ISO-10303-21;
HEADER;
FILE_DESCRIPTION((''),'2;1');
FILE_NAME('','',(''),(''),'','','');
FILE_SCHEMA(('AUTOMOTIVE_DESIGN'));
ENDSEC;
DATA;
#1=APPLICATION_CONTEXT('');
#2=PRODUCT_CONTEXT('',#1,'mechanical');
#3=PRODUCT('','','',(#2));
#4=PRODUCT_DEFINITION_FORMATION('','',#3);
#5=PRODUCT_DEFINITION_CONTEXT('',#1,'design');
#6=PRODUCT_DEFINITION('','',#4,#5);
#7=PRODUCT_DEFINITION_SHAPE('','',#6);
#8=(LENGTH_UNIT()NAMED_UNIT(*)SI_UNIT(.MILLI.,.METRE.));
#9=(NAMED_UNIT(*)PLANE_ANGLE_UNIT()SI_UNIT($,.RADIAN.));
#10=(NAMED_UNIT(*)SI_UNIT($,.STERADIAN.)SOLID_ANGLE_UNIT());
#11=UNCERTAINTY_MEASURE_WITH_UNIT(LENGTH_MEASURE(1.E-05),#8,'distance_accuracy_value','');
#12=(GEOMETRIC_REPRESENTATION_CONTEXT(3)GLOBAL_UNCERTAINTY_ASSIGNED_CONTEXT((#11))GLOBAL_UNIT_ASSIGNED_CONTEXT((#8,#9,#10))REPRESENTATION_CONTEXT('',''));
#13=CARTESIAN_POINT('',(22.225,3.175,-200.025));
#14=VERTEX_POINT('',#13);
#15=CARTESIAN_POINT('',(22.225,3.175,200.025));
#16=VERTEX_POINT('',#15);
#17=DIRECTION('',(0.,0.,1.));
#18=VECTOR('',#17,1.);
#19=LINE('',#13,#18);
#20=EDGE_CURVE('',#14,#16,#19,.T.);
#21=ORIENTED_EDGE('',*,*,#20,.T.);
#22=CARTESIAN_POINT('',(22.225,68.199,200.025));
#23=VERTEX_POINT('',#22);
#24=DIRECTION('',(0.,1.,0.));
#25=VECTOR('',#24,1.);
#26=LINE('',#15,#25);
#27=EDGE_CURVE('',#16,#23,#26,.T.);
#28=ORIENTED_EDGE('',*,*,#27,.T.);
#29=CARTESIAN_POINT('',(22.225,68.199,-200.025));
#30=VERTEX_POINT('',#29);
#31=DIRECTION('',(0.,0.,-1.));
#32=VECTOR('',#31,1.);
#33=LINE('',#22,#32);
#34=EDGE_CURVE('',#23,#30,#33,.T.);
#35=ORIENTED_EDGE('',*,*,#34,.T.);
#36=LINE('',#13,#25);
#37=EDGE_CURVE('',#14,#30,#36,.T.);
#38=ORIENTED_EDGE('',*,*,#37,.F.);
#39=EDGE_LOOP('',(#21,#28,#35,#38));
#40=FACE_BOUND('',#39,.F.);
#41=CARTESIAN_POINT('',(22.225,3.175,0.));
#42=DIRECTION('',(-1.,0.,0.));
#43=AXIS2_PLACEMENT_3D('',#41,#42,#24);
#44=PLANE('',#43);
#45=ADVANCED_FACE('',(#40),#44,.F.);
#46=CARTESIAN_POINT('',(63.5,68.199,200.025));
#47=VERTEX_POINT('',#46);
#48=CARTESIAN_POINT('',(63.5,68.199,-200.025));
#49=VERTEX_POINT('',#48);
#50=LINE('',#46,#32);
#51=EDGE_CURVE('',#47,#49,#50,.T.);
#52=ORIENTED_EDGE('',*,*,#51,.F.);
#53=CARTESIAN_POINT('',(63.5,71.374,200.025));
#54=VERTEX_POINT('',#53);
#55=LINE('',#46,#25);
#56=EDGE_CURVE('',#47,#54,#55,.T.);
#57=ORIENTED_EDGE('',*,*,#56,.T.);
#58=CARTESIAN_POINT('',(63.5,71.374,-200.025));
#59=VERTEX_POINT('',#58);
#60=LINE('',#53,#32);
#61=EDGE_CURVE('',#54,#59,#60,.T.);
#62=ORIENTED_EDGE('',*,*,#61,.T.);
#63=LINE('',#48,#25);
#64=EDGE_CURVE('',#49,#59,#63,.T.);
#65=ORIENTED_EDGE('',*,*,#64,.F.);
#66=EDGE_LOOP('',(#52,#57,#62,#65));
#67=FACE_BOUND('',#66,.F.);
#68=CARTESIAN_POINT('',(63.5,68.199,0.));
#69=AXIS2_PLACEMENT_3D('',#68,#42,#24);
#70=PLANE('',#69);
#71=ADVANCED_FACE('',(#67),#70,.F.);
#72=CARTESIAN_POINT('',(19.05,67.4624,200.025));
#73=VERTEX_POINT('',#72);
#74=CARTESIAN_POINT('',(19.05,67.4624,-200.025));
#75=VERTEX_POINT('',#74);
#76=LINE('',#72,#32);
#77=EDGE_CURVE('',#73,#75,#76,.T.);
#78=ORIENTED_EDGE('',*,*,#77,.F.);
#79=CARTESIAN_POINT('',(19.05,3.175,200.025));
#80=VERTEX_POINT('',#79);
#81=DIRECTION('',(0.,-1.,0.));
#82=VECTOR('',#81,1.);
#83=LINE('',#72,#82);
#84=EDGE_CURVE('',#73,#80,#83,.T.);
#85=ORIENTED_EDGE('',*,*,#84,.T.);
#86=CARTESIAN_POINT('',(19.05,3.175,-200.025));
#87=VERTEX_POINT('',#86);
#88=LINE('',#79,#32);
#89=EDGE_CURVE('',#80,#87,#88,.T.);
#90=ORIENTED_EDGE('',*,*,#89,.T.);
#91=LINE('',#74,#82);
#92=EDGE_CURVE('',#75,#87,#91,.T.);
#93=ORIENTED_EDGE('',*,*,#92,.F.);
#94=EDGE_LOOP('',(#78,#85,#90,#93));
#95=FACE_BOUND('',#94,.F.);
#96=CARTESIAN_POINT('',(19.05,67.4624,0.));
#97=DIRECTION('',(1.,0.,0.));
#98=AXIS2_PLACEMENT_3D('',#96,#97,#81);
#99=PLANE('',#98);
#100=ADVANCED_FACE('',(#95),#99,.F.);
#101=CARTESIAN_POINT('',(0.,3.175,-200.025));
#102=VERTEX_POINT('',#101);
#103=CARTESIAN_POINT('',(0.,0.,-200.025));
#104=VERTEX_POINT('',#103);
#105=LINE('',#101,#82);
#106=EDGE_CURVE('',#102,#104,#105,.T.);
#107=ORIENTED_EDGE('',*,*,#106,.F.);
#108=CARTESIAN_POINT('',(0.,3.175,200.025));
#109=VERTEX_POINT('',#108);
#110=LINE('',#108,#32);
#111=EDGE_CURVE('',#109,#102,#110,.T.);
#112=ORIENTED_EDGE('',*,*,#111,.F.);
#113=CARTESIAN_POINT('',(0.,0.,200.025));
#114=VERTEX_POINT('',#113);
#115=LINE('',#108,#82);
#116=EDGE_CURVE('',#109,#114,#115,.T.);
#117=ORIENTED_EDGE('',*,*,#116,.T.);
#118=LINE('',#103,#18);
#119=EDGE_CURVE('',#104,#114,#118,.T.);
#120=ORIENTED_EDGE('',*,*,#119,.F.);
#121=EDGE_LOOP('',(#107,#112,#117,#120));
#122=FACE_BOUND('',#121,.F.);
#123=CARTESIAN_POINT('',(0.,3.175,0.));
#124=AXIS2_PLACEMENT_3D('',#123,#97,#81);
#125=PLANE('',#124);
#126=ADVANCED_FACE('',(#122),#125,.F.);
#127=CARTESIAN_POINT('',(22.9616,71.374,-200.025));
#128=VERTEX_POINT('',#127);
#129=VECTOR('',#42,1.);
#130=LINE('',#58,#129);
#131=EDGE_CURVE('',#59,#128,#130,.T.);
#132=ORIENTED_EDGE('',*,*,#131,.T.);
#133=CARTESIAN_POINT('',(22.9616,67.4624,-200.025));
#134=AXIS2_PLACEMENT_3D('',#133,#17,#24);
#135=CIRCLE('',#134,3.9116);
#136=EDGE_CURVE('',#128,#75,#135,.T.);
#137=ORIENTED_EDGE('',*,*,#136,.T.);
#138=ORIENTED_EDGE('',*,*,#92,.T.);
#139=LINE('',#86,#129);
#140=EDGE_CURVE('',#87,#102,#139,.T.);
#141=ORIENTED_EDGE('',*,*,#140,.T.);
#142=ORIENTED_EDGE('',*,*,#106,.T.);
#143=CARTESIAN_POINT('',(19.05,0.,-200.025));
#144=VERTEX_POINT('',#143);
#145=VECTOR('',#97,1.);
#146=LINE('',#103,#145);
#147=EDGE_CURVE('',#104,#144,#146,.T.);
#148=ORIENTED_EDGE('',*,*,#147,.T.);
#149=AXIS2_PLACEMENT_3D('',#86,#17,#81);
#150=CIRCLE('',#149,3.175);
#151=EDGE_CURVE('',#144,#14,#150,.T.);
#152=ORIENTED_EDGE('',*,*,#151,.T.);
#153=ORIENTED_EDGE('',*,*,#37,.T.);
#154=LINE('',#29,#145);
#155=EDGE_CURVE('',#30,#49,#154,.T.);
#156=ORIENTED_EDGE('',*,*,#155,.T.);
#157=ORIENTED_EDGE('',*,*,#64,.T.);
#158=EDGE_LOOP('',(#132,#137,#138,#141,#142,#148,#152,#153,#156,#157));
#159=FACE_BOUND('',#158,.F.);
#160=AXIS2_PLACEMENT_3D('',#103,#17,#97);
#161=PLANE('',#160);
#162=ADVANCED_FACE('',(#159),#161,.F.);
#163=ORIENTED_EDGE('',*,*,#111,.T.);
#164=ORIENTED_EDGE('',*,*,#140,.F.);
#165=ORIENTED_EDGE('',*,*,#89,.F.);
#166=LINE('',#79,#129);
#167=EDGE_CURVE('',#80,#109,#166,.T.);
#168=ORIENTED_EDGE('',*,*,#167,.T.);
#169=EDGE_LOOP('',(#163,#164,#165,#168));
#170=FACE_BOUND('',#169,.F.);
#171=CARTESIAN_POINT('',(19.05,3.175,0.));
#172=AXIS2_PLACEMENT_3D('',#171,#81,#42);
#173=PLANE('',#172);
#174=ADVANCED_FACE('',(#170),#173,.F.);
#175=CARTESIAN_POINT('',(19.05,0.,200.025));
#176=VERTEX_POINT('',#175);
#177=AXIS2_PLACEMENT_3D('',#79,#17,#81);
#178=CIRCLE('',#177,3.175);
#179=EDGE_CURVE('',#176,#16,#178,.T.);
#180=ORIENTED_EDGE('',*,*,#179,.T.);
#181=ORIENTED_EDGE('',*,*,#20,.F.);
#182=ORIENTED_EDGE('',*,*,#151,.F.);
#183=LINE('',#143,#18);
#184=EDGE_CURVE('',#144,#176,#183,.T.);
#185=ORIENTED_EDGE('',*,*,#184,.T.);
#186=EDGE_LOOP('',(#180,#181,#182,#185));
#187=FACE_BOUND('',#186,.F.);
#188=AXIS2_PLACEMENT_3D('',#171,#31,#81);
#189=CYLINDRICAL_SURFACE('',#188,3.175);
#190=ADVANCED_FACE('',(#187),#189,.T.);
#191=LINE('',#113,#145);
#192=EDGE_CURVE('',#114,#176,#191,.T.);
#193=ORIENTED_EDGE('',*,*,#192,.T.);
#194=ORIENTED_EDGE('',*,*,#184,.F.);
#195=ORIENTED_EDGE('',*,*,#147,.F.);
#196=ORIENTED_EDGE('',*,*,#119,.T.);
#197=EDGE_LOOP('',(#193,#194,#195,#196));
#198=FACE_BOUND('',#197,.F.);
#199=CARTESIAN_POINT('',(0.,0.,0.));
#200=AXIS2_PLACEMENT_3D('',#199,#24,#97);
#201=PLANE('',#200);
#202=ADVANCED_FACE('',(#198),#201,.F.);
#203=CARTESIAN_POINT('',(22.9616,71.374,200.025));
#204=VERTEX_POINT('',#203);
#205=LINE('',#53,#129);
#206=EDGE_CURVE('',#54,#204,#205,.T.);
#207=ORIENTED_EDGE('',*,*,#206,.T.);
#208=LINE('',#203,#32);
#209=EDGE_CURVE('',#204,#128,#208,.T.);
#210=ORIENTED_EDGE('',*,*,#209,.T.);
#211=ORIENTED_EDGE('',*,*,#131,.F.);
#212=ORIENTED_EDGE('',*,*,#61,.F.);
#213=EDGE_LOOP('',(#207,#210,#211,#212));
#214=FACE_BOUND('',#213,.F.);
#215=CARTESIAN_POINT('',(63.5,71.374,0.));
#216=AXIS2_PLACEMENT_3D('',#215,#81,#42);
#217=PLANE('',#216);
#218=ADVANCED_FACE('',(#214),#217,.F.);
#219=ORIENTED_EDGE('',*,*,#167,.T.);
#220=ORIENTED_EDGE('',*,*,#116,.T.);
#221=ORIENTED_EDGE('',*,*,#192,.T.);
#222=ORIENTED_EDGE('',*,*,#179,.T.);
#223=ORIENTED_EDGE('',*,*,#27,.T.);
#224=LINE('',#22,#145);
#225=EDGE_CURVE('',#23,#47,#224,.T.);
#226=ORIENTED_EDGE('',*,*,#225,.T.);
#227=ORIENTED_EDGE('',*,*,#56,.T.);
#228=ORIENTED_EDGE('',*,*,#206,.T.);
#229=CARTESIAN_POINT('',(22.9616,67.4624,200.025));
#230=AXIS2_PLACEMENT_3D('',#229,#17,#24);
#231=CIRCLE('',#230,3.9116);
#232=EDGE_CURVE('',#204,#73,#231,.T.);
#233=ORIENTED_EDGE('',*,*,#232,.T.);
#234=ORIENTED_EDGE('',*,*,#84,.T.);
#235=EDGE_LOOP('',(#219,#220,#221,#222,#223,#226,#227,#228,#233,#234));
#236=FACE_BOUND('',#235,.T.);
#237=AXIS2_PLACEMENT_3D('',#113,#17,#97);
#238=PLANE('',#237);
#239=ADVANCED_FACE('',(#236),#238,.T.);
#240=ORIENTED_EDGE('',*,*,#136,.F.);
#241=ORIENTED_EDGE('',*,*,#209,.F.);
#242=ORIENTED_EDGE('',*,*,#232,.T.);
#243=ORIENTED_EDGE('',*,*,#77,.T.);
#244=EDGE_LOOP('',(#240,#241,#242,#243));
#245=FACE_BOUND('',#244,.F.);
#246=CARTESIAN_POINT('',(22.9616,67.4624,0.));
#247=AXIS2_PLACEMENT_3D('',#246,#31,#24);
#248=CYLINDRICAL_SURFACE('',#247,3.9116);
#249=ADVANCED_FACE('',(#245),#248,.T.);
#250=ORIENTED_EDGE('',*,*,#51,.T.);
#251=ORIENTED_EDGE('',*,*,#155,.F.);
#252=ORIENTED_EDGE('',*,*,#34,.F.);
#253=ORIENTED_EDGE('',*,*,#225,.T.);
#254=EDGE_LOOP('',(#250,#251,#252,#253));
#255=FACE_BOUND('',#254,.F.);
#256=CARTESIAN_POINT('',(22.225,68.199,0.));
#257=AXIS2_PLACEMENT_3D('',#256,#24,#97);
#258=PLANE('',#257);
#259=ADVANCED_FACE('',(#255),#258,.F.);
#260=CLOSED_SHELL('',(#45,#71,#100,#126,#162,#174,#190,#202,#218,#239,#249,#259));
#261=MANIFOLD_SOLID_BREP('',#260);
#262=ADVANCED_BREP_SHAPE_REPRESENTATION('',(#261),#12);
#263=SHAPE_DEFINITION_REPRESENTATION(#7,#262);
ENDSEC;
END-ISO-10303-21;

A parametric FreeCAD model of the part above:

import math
import FreeCAD as App
import Part
import Sketcher

V = App.Vector
Q = App.Units.Quantity

doc = App.newDocument("Part")
body = doc.addObject("PartDesign::Body", "Body")

sketch1 = doc.addObject("Sketcher::SketchObject", "Sketch")
body.addObject(sketch1)
sketch1.AttachmentSupport = (doc.XY_Plane, [""])
sketch1.MapMode = "FlatFace"
sketch1.addGeometry(Part.LineSegment(V(0, 3.2, 0), V(0, 0, 0)), False)
sketch1.addGeometry(Part.LineSegment(V(0, 0, 0), V(19.1, 0, 0)), False)
sketch1.addGeometry(Part.ArcOfCircle(Part.Circle(V(19.1, 3.2, 0), V(0, 0, 1), 3.2), math.radians(-90), math.radians(0)), False)
sketch1.addGeometry(Part.LineSegment(V(22.2, 3.2, 0), V(22.2, 68.2, 0)), False)
sketch1.addGeometry(Part.LineSegment(V(22.2, 68.2, 0), V(63.5, 68.2, 0)), False)
sketch1.addGeometry(Part.LineSegment(V(63.5, 68.2, 0), V(63.5, 71.4, 0)), False)
sketch1.addGeometry(Part.LineSegment(V(63.5, 71.4, 0), V(23, 71.4, 0)), False)
sketch1.addGeometry(Part.ArcOfCircle(Part.Circle(V(23, 67.5, 0), V(0, 0, 1), 3.9), math.radians(90), math.radians(180)), False)
sketch1.addGeometry(Part.LineSegment(V(19.1, 67.5, 0), V(19.1, 3.2, 0)), False)
sketch1.addGeometry(Part.LineSegment(V(19.1, 3.2, 0), V(0, 3.2, 0)), False)
sketch1.addConstraint(Sketcher.Constraint("Coincident", 0, 2, 1, 1))
sketch1.addConstraint(Sketcher.Constraint("Tangent", 1, 2, 2, 1))
sketch1.addConstraint(Sketcher.Constraint("Tangent", 2, 2, 3, 1))
sketch1.addConstraint(Sketcher.Constraint("Coincident", 3, 2, 4, 1))
sketch1.addConstraint(Sketcher.Constraint("Coincident", 4, 2, 5, 1))
sketch1.addConstraint(Sketcher.Constraint("Coincident", 5, 2, 6, 1))
sketch1.addConstraint(Sketcher.Constraint("Tangent", 6, 2, 7, 1))
sketch1.addConstraint(Sketcher.Constraint("Tangent", 7, 2, 8, 1))
sketch1.addConstraint(Sketcher.Constraint("Coincident", 8, 2, 9, 1))
sketch1.addConstraint(Sketcher.Constraint("Coincident", 9, 2, 0, 1))
sketch1.addConstraint(Sketcher.Constraint("Vertical", 0))
sketch1.addConstraint(Sketcher.Constraint("Horizontal", 1))
sketch1.addConstraint(Sketcher.Constraint("Vertical", 3))
sketch1.addConstraint(Sketcher.Constraint("Horizontal", 4))
sketch1.addConstraint(Sketcher.Constraint("Vertical", 5))
sketch1.addConstraint(Sketcher.Constraint("Horizontal", 6))
sketch1.addConstraint(Sketcher.Constraint("Vertical", 8))
sketch1.addConstraint(Sketcher.Constraint("Horizontal", 9))
sketch1.addConstraint(Sketcher.Constraint("Coincident", 0, 2, -1, 1))
sketch1.addConstraint(Sketcher.Constraint("Coincident", 8, 2, 2, 3))
sketch1.addConstraint(Sketcher.Constraint("Equal", 0, 5))
sketch1.addConstraint(Sketcher.Constraint("Radius", 2, Q("0.125 in")))
sketch1.addConstraint(Sketcher.Constraint("Radius", 7, Q("0.154 in")))
sketch1.addConstraint(Sketcher.Constraint("DistanceX", 4, 1, 4, 2, Q("1.625 in")))
sketch1.addConstraint(Sketcher.Constraint("DistanceX", -1, 1, 2, 2, Q("0.875 in")))
sketch1.addConstraint(Sketcher.Constraint("DistanceY", -1, 1, 3, 2, Q("2.685 in")))
pad1 = doc.addObject("PartDesign::Pad", "Pad")
body.addObject(pad1)
pad1.Profile = sketch1
pad1.Length = Q("15.75 in")
pad1.Midplane = True

doc.recompute()
